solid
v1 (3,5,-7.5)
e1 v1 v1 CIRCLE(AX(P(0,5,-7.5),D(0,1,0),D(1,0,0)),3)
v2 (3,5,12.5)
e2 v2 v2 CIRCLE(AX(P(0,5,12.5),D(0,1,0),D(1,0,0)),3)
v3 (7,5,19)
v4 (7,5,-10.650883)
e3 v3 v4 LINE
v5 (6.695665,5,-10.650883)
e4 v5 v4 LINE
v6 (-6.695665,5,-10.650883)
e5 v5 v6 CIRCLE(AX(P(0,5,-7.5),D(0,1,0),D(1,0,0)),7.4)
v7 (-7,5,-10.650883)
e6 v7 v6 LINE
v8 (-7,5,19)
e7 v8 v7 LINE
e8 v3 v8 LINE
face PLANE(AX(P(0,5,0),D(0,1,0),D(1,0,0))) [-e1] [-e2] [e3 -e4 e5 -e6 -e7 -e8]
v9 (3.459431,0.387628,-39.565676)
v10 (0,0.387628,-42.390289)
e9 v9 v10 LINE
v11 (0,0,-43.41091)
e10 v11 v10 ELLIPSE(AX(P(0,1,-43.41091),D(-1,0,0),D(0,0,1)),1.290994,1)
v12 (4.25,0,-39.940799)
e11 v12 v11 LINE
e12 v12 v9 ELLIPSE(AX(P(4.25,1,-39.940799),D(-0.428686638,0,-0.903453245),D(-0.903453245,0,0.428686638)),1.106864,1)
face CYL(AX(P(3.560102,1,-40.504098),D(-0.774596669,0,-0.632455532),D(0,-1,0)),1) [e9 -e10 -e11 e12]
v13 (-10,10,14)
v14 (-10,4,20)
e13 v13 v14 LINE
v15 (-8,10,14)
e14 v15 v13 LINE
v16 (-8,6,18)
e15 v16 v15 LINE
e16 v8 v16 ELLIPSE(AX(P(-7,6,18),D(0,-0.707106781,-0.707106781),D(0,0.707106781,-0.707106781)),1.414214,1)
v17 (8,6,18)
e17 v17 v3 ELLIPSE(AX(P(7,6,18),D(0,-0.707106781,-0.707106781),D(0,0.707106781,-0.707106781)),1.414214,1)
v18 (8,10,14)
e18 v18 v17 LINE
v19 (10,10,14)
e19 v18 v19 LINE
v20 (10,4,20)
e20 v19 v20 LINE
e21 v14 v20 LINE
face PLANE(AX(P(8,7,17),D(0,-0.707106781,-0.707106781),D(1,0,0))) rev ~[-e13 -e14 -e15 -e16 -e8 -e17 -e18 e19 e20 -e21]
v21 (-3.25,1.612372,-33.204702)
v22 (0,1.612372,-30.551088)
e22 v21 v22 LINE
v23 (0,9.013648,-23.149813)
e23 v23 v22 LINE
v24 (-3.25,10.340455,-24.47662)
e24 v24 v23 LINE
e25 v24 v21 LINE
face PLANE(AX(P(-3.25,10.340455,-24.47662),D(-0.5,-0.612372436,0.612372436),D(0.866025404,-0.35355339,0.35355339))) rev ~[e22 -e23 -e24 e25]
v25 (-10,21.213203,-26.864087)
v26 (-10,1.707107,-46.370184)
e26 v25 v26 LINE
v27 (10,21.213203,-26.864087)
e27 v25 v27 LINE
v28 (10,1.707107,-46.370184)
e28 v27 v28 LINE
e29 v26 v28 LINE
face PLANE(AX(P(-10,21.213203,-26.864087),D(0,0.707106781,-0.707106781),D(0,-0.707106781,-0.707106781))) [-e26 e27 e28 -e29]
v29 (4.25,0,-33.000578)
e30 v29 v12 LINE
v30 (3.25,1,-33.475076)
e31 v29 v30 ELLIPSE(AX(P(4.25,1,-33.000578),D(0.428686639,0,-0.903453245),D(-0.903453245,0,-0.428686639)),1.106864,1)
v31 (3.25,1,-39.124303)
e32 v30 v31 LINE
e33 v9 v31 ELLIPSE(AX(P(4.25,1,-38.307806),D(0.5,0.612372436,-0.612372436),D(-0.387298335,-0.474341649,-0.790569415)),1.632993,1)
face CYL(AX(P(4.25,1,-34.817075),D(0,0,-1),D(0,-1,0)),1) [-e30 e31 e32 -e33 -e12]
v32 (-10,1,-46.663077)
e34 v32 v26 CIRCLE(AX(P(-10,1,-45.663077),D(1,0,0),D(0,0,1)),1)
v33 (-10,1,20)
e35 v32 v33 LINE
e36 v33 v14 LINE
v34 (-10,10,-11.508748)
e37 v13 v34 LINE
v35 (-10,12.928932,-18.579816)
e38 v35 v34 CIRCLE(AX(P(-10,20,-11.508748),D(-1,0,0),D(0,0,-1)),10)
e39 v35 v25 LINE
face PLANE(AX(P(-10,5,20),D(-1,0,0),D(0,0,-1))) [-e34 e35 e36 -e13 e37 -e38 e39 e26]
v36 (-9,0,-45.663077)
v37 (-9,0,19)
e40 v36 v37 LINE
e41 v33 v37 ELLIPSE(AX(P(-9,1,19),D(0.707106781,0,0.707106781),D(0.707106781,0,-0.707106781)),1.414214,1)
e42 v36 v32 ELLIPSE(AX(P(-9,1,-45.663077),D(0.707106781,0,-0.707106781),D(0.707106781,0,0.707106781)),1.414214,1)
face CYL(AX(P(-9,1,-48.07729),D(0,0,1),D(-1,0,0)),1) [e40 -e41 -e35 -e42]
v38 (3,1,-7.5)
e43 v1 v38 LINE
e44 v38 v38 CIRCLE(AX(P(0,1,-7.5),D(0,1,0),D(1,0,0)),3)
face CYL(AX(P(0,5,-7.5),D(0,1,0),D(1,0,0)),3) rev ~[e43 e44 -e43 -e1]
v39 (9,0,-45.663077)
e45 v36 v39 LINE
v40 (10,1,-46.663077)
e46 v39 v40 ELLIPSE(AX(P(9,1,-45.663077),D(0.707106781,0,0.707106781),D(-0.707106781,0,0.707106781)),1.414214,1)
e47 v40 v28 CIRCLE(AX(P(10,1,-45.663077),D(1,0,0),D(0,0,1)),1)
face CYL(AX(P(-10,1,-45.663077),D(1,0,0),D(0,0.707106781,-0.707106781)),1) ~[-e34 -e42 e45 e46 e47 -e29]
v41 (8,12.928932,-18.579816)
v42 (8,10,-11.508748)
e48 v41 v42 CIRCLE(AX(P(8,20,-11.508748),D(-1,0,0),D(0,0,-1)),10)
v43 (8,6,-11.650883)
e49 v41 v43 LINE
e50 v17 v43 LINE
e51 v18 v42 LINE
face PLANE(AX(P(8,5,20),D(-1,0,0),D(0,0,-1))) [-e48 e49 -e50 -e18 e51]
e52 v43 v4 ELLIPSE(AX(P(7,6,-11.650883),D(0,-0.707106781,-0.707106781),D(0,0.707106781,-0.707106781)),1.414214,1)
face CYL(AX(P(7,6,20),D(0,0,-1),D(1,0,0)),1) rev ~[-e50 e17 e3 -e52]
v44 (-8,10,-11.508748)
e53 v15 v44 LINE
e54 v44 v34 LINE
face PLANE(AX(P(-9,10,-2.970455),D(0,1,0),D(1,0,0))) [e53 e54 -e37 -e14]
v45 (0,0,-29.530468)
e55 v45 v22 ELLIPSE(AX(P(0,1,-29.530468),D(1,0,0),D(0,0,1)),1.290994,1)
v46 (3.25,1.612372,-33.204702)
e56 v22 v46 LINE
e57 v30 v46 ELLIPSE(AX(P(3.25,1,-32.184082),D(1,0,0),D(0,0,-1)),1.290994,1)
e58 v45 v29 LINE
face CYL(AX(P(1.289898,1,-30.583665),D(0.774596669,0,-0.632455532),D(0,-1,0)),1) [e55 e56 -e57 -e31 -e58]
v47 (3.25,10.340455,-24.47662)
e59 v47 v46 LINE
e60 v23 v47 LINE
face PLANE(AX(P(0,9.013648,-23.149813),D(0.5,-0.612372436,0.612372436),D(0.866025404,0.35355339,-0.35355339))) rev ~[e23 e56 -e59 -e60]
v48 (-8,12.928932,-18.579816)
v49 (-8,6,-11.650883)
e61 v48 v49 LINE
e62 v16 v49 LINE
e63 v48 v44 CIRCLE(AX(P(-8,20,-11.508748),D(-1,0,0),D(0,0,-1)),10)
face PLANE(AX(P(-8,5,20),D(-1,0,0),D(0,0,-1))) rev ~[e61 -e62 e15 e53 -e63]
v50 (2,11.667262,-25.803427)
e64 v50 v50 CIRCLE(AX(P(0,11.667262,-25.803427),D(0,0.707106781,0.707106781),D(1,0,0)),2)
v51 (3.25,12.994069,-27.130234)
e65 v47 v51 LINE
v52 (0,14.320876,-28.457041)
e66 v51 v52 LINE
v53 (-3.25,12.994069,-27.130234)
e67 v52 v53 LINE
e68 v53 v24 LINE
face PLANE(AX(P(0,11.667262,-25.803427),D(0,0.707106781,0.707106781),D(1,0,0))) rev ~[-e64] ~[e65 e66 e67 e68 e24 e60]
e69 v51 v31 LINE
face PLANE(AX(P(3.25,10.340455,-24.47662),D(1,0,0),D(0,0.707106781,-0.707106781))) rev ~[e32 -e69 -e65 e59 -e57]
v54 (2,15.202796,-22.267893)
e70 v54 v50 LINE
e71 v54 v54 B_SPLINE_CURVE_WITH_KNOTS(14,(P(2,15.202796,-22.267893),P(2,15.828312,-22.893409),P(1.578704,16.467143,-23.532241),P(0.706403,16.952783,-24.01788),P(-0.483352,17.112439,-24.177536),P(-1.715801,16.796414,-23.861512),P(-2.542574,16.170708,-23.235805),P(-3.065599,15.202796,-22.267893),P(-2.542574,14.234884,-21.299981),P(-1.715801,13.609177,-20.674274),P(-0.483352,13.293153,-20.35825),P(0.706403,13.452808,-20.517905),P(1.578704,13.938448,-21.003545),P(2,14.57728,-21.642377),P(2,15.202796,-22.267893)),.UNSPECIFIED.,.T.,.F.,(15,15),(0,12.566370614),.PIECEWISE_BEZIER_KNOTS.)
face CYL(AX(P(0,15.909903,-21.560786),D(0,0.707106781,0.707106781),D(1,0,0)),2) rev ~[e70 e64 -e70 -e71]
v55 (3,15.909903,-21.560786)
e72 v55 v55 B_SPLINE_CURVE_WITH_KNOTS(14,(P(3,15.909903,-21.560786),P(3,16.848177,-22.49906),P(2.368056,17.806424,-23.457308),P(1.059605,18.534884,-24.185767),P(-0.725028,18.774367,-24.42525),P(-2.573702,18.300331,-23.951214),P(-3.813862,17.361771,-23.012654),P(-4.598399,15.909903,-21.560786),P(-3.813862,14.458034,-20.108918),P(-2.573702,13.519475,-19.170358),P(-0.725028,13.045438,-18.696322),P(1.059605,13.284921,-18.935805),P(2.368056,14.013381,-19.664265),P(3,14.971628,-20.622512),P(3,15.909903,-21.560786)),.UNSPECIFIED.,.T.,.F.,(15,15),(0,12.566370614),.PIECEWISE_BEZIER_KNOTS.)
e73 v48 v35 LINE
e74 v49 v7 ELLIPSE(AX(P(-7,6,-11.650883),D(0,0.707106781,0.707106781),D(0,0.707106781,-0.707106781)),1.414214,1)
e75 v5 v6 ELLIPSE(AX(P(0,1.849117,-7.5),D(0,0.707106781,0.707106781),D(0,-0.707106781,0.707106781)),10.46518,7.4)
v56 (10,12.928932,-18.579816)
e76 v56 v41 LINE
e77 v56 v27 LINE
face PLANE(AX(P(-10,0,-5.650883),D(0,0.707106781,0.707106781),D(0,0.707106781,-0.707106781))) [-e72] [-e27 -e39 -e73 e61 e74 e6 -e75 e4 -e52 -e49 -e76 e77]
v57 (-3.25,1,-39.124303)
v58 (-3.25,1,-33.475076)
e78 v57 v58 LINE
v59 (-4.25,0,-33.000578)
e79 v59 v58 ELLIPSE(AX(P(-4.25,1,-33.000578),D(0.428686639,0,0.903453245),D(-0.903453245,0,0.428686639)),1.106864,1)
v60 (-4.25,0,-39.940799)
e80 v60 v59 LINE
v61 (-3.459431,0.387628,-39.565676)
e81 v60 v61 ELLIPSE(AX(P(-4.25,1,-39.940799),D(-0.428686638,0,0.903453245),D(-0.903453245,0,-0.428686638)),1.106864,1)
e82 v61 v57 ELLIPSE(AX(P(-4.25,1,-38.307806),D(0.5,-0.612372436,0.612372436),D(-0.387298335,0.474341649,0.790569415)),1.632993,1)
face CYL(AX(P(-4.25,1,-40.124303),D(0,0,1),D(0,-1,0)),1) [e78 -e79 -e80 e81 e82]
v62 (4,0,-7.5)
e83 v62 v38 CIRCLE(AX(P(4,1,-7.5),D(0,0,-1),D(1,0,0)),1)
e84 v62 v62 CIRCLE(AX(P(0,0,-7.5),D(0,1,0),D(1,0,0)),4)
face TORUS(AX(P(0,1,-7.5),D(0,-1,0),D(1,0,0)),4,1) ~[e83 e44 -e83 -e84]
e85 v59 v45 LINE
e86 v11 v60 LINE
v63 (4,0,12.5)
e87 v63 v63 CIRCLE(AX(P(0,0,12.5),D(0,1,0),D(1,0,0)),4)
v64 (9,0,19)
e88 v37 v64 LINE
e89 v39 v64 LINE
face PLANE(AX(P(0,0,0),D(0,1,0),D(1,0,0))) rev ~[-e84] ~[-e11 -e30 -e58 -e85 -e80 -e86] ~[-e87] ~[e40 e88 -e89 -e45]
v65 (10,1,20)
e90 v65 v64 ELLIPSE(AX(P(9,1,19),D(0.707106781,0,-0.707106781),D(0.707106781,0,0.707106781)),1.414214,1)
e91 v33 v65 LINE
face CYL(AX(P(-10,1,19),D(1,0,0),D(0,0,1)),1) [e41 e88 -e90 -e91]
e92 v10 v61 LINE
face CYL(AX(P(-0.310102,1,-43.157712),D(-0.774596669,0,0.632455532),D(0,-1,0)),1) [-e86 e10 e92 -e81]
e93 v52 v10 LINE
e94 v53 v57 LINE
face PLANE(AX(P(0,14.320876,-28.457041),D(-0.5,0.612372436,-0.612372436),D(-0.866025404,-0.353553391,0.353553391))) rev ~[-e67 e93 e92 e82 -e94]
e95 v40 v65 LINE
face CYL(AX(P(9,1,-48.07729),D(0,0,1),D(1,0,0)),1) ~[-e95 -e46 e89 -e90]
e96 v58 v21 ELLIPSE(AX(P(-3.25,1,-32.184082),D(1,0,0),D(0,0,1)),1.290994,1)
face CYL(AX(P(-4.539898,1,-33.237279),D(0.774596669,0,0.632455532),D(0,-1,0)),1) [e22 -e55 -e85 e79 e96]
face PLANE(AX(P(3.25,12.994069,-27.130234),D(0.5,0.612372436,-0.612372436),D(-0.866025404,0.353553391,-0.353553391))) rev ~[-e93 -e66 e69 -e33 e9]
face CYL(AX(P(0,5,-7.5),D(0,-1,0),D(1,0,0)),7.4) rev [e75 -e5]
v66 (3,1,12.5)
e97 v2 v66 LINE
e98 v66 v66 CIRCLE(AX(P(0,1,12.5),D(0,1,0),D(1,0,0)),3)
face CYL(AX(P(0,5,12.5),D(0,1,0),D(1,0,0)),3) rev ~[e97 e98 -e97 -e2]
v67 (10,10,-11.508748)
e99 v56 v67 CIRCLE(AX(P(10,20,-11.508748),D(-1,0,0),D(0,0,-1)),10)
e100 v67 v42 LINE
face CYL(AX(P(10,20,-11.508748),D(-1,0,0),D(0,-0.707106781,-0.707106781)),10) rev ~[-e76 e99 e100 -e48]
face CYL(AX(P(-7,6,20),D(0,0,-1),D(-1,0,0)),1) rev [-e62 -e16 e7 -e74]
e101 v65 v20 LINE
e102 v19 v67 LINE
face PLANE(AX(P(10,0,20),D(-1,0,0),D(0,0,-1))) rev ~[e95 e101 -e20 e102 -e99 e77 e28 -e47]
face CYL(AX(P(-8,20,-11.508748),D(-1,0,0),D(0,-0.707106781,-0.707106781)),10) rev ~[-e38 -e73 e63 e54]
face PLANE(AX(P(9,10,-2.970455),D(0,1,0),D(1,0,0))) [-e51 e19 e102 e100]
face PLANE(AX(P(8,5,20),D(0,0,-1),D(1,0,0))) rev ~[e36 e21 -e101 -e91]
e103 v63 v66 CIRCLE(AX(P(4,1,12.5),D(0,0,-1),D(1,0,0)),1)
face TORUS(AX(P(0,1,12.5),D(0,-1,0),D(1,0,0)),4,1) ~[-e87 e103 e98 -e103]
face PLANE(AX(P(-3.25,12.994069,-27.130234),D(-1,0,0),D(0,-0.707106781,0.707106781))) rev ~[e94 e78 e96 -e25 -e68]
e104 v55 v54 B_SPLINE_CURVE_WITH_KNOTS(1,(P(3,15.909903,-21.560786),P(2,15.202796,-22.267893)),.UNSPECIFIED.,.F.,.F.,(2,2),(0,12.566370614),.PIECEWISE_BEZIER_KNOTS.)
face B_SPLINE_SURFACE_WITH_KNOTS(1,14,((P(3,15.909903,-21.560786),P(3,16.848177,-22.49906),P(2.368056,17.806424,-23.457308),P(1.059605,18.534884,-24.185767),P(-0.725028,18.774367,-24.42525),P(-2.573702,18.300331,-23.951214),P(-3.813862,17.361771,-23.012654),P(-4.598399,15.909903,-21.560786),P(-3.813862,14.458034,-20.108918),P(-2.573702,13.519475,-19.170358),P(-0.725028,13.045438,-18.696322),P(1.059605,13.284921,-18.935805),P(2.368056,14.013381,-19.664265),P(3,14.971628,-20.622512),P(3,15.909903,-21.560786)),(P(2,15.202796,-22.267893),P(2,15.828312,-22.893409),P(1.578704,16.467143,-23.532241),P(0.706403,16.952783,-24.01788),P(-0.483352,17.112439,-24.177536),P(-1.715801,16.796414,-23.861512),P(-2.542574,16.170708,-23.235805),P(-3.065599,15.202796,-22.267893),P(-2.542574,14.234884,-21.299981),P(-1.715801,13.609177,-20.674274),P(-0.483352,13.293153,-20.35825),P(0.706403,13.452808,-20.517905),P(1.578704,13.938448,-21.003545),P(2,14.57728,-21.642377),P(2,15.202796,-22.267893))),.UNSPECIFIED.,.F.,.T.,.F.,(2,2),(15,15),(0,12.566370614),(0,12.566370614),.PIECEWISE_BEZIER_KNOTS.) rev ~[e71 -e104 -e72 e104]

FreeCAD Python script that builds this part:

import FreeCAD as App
import Part
import Sketcher
Q = App.Units.Quantity


def edges_at(feature, points):
    """Names of the edges that pass closest to the given points."""
    edges = feature.Shape.Edges
    near = lambda p: min(range(len(edges)), key=lambda i: edges[i].distToShape(Part.Vertex(*p))[0])
    return sorted({f"Edge{near(p) + 1}" for p in points})


def add_polygon(sketch, points):
    """Adds a closed chain of lines whose ends are joined by coincident constraints."""
    first, n = sketch.GeometryCount, len(points)
    for a, b in zip(points, points[1:] + points[:1]):
        sketch.addGeometry(Part.LineSegment(App.Vector(*a, 0), App.Vector(*b, 0)), False)
    for i in range(n):
        sketch.addConstraint(Sketcher.Constraint("Coincident", first + i, 2, first + (i + 1) % n, 1))

doc = App.newDocument("Part")
body = doc.addObject("PartDesign::Body", "Body")

# Sketch on XZ plane
sketch1 = body.newObject("Sketcher::SketchObject", "Sketch")
sketch1.AttachmentSupport = (doc.getObject("XZ_Plane"), [""])
sketch1.MapMode = "FlatFace"
add_polygon(sketch1, [(-10, -20), (-10, 20), (10, 20), (10, -20)])  # lines 0-3
sketch1.addConstraint([
    Sketcher.Constraint("Vertical", 0),
    Sketcher.Constraint("Horizontal", 1),
    Sketcher.Constraint("Vertical", 2),
    Sketcher.Constraint("Horizontal", 3),
    Sketcher.Constraint("Symmetric", 0, 2, 2, 2, -1, 1),
    Sketcher.Constraint("DistanceX", 1, 1, 1, 2, 20.0),
    Sketcher.Constraint("DistanceY", 0, 1, 0, 2, 40.0),
])
pad1 = body.newObject("PartDesign::Pad", "Pad")
pad1.Profile = sketch1
pad1.Length = 5
pad1.Reversed = True

# Sketch on YZ plane
sketch2 = body.newObject("Sketcher::SketchObject", "Sketch001")
sketch2.AttachmentSupport = (doc.getObject("YZ_Plane"), [""])
sketch2.MapMode = "FlatFace"
sketch2.AttachmentOffset = App.Placement(App.Vector(0, 0, -10), App.Rotation())
add_polygon(sketch2, [(0, -5.650883), (21.213203, -26.864087), (0, -48.07729)])  # lines 0-2
sketch2.addConstraint([
    Sketcher.Constraint("Vertical", 2),
    Sketcher.Constraint("PointOnObject", 1, 2, -2),
    Sketcher.Constraint("Perpendicular", 0, 1),
    Sketcher.Constraint("Equal", 0, 1),
    Sketcher.Constraint("Distance", 0, 30.0),
    Sketcher.Constraint("DistanceY", 1, 2, -1, 1, 48.07729),
])
pad2 = body.newObject("PartDesign::Pad", "Pad001")
pad2.Profile = sketch2
pad2.Length = 20

# Sketch on XZ plane
sketch3 = body.newObject("Sketcher::SketchObject", "Sketch002")
sketch3.AttachmentSupport = (doc.getObject("XZ_Plane"), [""])
sketch3.MapMode = "FlatFace"
sketch3.AttachmentOffset = App.Placement(App.Vector(0, 0, -5), App.Rotation())
sketch3.addGeometry(Part.Circle(App.Vector(0, 12.5, 0), App.Vector(0, 0, 1), 3), False)
sketch3.addConstraint([
    Sketcher.Constraint("PointOnObject", 0, 3, -2),
    Sketcher.Constraint("Diameter", 0, 6.0),
    Sketcher.Constraint("DistanceY", -1, 1, 0, 3, 12.5),
])
pocket1 = body.newObject("PartDesign::Pocket", "Pocket")
pocket1.Profile = sketch3
pocket1.Length = 15
pocket1.Reversed = True
doc.recompute()

linearpattern = body.newObject("PartDesign::LinearPattern", "LinearPattern")
linearpattern.Originals = [pocket1]
linearpattern.Direction = (doc.getObject("Z_Axis"), [""])
linearpattern.Mode = "offset"
linearpattern.Offset = 20
linearpattern.Occurrences = 2
linearpattern.Reversed = True
body.Tip = linearpattern

# Sketch on XZ plane
sketch4 = body.newObject("Sketcher::SketchObject", "Sketch003")
sketch4.AttachmentSupport = (doc.getObject("XZ_Plane"), [""])
sketch4.MapMode = "FlatFace"
sketch4.AttachmentOffset = App.Placement(App.Vector(0, 0, -5), App.Rotation())
sketch4.addGeometry(Part.Circle(App.Vector(0, -7.5, 0), App.Vector(0, 0, 1), 7.4), False)
sketch4.addConstraint([
    Sketcher.Constraint("PointOnObject", 0, 3, -2),
    Sketcher.Constraint("Diameter", 0, 14.8),
    Sketcher.Constraint("DistanceY", 0, 3, -1, 1, 7.5),
])
pocket2 = body.newObject("PartDesign::Pocket", "Pocket001")
pocket2.Profile = sketch4
pocket2.Length = 15

# Sketch on an angled plane
sketch5 = body.newObject("Sketcher::SketchObject", "Sketch004")
sketch5.Placement = App.Placement(App.Vector(0, -2.825442, -2.825442), App.Rotation(App.Vector(1, 0, 0), App.Vector(0, 0.707106781, -0.707106781), App.Vector(0, 0.707106781, 0.707106781), "ZXY"))
sketch5.addGeometry(Part.Circle(App.Vector(0, 26.495778, 0), App.Vector(0, 0, 1), 2), False)
sketch5.addConstraint([
    Sketcher.Constraint("PointOnObject", 0, 3, -2),
    Sketcher.Constraint("Diameter", 0, 4.0),
    Sketcher.Constraint("DistanceY", -1, 1, 0, 3, 26.495778),
])
pocket3 = body.newObject("PartDesign::Pocket", "Pocket002")
pocket3.Profile = sketch5
pocket3.Length = 50

# Sketch on an angled plane
sketch6 = body.newObject("Sketcher::SketchObject", "Sketch005")
sketch6.Placement = App.Placement(App.Vector(0, -7.068082, -7.068082), App.Rotation(App.Vector(1, 0, 0), App.Vector(0, 0.707106781, -0.707106781), App.Vector(0, 0.707106781, 0.707106781), "ZXY"))
add_polygon(sketch6, [(0, 30.248555), (-3.25, 28.372166), (-3.25, 24.61939), (0, 22.743001), (3.25, 24.61939), (3.25, 28.372166)])  # lines 0-5
sketch6.addConstraint([
    Sketcher.Constraint("Vertical", 1),
    Sketcher.Constraint("Vertical", 4),
    Sketcher.Constraint("Symmetric", 1, 2, 3, 2, -2),
    Sketcher.Constraint("PointOnObject", 2, 2, -2),
    Sketcher.Constraint("PointOnObject", 5, 2, -2),
    Sketcher.Constraint("Parallel", 0, 3),
    Sketcher.Constraint("Parallel", 2, 5),
    Sketcher.Constraint("Angle", 0, Q("-150 deg")),
    Sketcher.Constraint("DistanceX", 1, 2, 3, 2, 6.5),
    Sketcher.Constraint("DistanceY", -1, 1, 2, 2, 22.743001),
    Sketcher.Constraint("DistanceY", 1, 2, 1, 1, 3.752777),
])
pocket4 = body.newObject("PartDesign::Pocket", "Pocket003")
pocket4.Profile = sketch6
pocket4.Length = 40
doc.recompute()

chamfer = body.newObject("PartDesign::Chamfer", "Chamfer")
chamfer.Base = (pocket4, edges_at(pocket4, [(-2, 15.91, -21.561)]))
chamfer.Size = 1
doc.recompute()

fillet = body.newObject("PartDesign::Fillet", "Fillet")
fillet.Base = (chamfer, edges_at(chamfer, [
    (0, 0, -48.077),
    (-3, 0, 12.5),
    (-3, 0, -7.5),
    (0, 0, 20),
    (-10, 0, -14.039),
    (-1.625, 0, -41.451),
    (-3.25, 0, -37.471),
    (-1.625, 0, -33.49),
    (1.625, 0, -33.49),
    (3.25, 0, -37.471),
    (1.625, 0, -41.451),
    (10, 0, -14.039),
]))
fillet.Radius = 1

# Sketch on XZ plane
sketch7 = body.newObject("Sketcher::SketchObject", "Sketch006")
sketch7.AttachmentSupport = (doc.getObject("XZ_Plane"), [""])
sketch7.MapMode = "FlatFace"
sketch7.AttachmentOffset = App.Placement(App.Vector(0, 0, -5), App.Rotation())
add_polygon(sketch7, [(-10, -25.940909), (-10, 20), (-8, 20), (-8, -25.940909)])  # lines 0-3
sketch7.addConstraint([
    Sketcher.Constraint("Vertical", 0),
    Sketcher.Constraint("Horizontal", 1),
    Sketcher.Constraint("Vertical", 2),
    Sketcher.Constraint("Horizontal", 3),
    Sketcher.Constraint("DistanceX", 1, 1, 1, 2, 2.0),
    Sketcher.Constraint("DistanceX", 0, 2, -1, 1, 10.0),
    Sketcher.Constraint("DistanceY", -1, 1, 0, 2, 20.0),
    Sketcher.Constraint("DistanceY", 0, 1, 0, 2, 45.940909),
])
pad3 = body.newObject("PartDesign::Pad", "Pad002")
pad3.Profile = sketch7
pad3.Length = 5
pad3.Reversed = True
doc.recompute()

linearpattern2 = body.newObject("PartDesign::LinearPattern", "LinearPattern001")
linearpattern2.Originals = [pad3]
linearpattern2.Direction = (doc.getObject("X_Axis"), [""])
linearpattern2.Mode = "offset"
linearpattern2.Offset = 18
linearpattern2.Occurrences = 2
body.Tip = linearpattern2
doc.recompute()

fillet2 = body.newObject("PartDesign::Fillet", "Fillet001")
fillet2.Base = (linearpattern2, edges_at(linearpattern2, [(-8, 5, 4.675), (8, 5, 4.675)]))
fillet2.Radius = 1
doc.recompute()

chamfer2 = body.newObject("PartDesign::Chamfer", "Chamfer001")
chamfer2.Base = (fillet2, edges_at(fillet2, [(9, 10, 20)]))
chamfer2.Size = 6
doc.recompute()

fillet3 = body.newObject("PartDesign::Fillet", "Fillet002")
fillet3.Base = (chamfer2, edges_at(chamfer2, [(-9, 10, -15.651), (9, 10, -15.651)]))
fillet3.Radius = 10

doc.recompute()
